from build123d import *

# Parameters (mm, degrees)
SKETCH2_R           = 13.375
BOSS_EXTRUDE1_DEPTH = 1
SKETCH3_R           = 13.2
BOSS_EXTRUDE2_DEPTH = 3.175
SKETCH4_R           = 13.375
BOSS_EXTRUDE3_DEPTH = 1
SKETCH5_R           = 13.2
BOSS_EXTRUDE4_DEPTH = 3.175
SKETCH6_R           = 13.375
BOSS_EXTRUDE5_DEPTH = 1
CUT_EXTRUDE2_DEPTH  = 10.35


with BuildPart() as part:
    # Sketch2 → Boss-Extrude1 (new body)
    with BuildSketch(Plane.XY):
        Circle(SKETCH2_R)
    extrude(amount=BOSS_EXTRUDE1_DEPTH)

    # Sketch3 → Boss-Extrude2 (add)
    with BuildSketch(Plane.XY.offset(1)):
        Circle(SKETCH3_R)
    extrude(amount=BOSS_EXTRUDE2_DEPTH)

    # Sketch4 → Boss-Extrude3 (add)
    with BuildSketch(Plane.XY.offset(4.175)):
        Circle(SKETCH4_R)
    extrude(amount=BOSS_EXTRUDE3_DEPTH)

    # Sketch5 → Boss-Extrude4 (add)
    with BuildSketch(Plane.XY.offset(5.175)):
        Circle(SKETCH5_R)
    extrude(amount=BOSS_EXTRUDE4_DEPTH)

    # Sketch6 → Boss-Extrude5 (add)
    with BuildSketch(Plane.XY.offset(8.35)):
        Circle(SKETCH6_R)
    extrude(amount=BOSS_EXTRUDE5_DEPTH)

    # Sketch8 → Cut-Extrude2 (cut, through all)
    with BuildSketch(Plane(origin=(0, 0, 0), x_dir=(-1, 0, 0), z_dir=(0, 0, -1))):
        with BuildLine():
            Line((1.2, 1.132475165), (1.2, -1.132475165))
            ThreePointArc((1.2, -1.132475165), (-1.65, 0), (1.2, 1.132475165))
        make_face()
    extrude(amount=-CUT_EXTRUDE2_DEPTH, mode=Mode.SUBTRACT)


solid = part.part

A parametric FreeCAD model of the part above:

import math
import FreeCAD as App
import Part
import Sketcher
from FreeCAD import Vector

doc = App.newDocument("Part")
body = doc.addObject("PartDesign::Body", "Body")

# Sketch on XY plane
sketch1 = body.newObject("Sketcher::SketchObject", "Sketch")
sketch1.AttachmentSupport = (doc.getObject("XY_Plane"), [""])
sketch1.MapMode = "FlatFace"
sketch1.addGeometry(Part.Circle(Vector(0, 0, 0), Vector(0, 0, 1), 13.375), False)
sketch1.addConstraint([
    Sketcher.Constraint("Coincident", 0, 3, -1, 1),
    Sketcher.Constraint("Diameter", 0, 26.75),
])
pad1 = body.newObject("PartDesign::Pad", "Pad")
pad1.Profile = sketch1
pad1.Length = 1

# Sketch on XY plane
sketch2 = body.newObject("Sketcher::SketchObject", "Sketch001")
sketch2.AttachmentSupport = (doc.getObject("XY_Plane"), [""])
sketch2.MapMode = "FlatFace"
sketch2.AttachmentOffset = App.Placement(Vector(0, 0, 1), App.Rotation())
sketch2.addGeometry(Part.Circle(Vector(0, 0, 0), Vector(0, 0, 1), 13.2), False)
sketch2.addConstraint([
    Sketcher.Constraint("Coincident", 0, 3, -1, 1),
    Sketcher.Constraint("Diameter", 0, 26.4),
])
pad2 = body.newObject("PartDesign::Pad", "Pad001")
pad2.Profile = sketch2
pad2.Length = 3.175

# Sketch on XY plane
sketch3 = body.newObject("Sketcher::SketchObject", "Sketch002")
sketch3.AttachmentSupport = (doc.getObject("XY_Plane"), [""])
sketch3.MapMode = "FlatFace"
sketch3.AttachmentOffset = App.Placement(Vector(0, 0, 4.175), App.Rotation())
sketch3.addGeometry(Part.Circle(Vector(0, 0, 0), Vector(0, 0, 1), 13.375), False)
sketch3.addConstraint([
    Sketcher.Constraint("Coincident", 0, 3, -1, 1),
    Sketcher.Constraint("Diameter", 0, 26.75),
])
pad3 = body.newObject("PartDesign::Pad", "Pad002")
pad3.Profile = sketch3
pad3.Length = 1

# Sketch on XY plane
sketch4 = body.newObject("Sketcher::SketchObject", "Sketch003")
sketch4.AttachmentSupport = (doc.getObject("XY_Plane"), [""])
sketch4.MapMode = "FlatFace"
sketch4.AttachmentOffset = App.Placement(Vector(0, 0, 5.175), App.Rotation())
sketch4.addGeometry(Part.Circle(Vector(0, 0, 0), Vector(0, 0, 1), 13.2), False)
sketch4.addConstraint([
    Sketcher.Constraint("Coincident", 0, 3, -1, 1),
    Sketcher.Constraint("Diameter", 0, 26.4),
])
pad4 = body.newObject("PartDesign::Pad", "Pad003")
pad4.Profile = sketch4
pad4.Length = 3.175

# Sketch on XY plane
sketch5 = body.newObject("Sketcher::SketchObject", "Sketch004")
sketch5.AttachmentSupport = (doc.getObject("XY_Plane"), [""])
sketch5.MapMode = "FlatFace"
sketch5.AttachmentOffset = App.Placement(Vector(0, 0, 8.35), App.Rotation())
sketch5.addGeometry(Part.Circle(Vector(0, 0, 0), Vector(0, 0, 1), 13.375), False)
sketch5.addConstraint([
    Sketcher.Constraint("Coincident", 0, 3, -1, 1),
    Sketcher.Constraint("Diameter", 0, 26.75),
])
pad5 = body.newObject("PartDesign::Pad", "Pad004")
pad5.Profile = sketch5
pad5.Length = 1

# Sketch on XY plane
sketch6 = body.newObject("Sketcher::SketchObject", "Sketch005")
sketch6.AttachmentSupport = (doc.getObject("XY_Plane"), [""])
sketch6.MapMode = "FlatFace"
sketch6.addGeometry([
    Part.LineSegment(Vector(-1.2, -1.132475, 0), Vector(-1.2, 1.132475, 0)),
    Part.ArcOfCircle(Part.Circle(Vector(0, 0, 0), Vector(0, 0, 1), 1.65), math.radians(-136.658242), math.radians(136.658242)),
], False)
sketch6.addConstraint([
    Sketcher.Constraint("Coincident", 0, 1, 1, 1),
    Sketcher.Constraint("Coincident", 1, 2, 0, 2),
    Sketcher.Constraint("Vertical", 0),
    Sketcher.Constraint("Coincident", 1, 3, -1, 1),
    Sketcher.Constraint("Radius", 1, 1.65),
    Sketcher.Constraint("DistanceX", 0, 1, -1, 1, 1.2),
])
pocket1 = body.newObject("PartDesign::Pocket", "Pocket")
pocket1.Profile = sketch6
pocket1.Type = "ThroughAll"
pocket1.Reversed = True

doc.recompute()
